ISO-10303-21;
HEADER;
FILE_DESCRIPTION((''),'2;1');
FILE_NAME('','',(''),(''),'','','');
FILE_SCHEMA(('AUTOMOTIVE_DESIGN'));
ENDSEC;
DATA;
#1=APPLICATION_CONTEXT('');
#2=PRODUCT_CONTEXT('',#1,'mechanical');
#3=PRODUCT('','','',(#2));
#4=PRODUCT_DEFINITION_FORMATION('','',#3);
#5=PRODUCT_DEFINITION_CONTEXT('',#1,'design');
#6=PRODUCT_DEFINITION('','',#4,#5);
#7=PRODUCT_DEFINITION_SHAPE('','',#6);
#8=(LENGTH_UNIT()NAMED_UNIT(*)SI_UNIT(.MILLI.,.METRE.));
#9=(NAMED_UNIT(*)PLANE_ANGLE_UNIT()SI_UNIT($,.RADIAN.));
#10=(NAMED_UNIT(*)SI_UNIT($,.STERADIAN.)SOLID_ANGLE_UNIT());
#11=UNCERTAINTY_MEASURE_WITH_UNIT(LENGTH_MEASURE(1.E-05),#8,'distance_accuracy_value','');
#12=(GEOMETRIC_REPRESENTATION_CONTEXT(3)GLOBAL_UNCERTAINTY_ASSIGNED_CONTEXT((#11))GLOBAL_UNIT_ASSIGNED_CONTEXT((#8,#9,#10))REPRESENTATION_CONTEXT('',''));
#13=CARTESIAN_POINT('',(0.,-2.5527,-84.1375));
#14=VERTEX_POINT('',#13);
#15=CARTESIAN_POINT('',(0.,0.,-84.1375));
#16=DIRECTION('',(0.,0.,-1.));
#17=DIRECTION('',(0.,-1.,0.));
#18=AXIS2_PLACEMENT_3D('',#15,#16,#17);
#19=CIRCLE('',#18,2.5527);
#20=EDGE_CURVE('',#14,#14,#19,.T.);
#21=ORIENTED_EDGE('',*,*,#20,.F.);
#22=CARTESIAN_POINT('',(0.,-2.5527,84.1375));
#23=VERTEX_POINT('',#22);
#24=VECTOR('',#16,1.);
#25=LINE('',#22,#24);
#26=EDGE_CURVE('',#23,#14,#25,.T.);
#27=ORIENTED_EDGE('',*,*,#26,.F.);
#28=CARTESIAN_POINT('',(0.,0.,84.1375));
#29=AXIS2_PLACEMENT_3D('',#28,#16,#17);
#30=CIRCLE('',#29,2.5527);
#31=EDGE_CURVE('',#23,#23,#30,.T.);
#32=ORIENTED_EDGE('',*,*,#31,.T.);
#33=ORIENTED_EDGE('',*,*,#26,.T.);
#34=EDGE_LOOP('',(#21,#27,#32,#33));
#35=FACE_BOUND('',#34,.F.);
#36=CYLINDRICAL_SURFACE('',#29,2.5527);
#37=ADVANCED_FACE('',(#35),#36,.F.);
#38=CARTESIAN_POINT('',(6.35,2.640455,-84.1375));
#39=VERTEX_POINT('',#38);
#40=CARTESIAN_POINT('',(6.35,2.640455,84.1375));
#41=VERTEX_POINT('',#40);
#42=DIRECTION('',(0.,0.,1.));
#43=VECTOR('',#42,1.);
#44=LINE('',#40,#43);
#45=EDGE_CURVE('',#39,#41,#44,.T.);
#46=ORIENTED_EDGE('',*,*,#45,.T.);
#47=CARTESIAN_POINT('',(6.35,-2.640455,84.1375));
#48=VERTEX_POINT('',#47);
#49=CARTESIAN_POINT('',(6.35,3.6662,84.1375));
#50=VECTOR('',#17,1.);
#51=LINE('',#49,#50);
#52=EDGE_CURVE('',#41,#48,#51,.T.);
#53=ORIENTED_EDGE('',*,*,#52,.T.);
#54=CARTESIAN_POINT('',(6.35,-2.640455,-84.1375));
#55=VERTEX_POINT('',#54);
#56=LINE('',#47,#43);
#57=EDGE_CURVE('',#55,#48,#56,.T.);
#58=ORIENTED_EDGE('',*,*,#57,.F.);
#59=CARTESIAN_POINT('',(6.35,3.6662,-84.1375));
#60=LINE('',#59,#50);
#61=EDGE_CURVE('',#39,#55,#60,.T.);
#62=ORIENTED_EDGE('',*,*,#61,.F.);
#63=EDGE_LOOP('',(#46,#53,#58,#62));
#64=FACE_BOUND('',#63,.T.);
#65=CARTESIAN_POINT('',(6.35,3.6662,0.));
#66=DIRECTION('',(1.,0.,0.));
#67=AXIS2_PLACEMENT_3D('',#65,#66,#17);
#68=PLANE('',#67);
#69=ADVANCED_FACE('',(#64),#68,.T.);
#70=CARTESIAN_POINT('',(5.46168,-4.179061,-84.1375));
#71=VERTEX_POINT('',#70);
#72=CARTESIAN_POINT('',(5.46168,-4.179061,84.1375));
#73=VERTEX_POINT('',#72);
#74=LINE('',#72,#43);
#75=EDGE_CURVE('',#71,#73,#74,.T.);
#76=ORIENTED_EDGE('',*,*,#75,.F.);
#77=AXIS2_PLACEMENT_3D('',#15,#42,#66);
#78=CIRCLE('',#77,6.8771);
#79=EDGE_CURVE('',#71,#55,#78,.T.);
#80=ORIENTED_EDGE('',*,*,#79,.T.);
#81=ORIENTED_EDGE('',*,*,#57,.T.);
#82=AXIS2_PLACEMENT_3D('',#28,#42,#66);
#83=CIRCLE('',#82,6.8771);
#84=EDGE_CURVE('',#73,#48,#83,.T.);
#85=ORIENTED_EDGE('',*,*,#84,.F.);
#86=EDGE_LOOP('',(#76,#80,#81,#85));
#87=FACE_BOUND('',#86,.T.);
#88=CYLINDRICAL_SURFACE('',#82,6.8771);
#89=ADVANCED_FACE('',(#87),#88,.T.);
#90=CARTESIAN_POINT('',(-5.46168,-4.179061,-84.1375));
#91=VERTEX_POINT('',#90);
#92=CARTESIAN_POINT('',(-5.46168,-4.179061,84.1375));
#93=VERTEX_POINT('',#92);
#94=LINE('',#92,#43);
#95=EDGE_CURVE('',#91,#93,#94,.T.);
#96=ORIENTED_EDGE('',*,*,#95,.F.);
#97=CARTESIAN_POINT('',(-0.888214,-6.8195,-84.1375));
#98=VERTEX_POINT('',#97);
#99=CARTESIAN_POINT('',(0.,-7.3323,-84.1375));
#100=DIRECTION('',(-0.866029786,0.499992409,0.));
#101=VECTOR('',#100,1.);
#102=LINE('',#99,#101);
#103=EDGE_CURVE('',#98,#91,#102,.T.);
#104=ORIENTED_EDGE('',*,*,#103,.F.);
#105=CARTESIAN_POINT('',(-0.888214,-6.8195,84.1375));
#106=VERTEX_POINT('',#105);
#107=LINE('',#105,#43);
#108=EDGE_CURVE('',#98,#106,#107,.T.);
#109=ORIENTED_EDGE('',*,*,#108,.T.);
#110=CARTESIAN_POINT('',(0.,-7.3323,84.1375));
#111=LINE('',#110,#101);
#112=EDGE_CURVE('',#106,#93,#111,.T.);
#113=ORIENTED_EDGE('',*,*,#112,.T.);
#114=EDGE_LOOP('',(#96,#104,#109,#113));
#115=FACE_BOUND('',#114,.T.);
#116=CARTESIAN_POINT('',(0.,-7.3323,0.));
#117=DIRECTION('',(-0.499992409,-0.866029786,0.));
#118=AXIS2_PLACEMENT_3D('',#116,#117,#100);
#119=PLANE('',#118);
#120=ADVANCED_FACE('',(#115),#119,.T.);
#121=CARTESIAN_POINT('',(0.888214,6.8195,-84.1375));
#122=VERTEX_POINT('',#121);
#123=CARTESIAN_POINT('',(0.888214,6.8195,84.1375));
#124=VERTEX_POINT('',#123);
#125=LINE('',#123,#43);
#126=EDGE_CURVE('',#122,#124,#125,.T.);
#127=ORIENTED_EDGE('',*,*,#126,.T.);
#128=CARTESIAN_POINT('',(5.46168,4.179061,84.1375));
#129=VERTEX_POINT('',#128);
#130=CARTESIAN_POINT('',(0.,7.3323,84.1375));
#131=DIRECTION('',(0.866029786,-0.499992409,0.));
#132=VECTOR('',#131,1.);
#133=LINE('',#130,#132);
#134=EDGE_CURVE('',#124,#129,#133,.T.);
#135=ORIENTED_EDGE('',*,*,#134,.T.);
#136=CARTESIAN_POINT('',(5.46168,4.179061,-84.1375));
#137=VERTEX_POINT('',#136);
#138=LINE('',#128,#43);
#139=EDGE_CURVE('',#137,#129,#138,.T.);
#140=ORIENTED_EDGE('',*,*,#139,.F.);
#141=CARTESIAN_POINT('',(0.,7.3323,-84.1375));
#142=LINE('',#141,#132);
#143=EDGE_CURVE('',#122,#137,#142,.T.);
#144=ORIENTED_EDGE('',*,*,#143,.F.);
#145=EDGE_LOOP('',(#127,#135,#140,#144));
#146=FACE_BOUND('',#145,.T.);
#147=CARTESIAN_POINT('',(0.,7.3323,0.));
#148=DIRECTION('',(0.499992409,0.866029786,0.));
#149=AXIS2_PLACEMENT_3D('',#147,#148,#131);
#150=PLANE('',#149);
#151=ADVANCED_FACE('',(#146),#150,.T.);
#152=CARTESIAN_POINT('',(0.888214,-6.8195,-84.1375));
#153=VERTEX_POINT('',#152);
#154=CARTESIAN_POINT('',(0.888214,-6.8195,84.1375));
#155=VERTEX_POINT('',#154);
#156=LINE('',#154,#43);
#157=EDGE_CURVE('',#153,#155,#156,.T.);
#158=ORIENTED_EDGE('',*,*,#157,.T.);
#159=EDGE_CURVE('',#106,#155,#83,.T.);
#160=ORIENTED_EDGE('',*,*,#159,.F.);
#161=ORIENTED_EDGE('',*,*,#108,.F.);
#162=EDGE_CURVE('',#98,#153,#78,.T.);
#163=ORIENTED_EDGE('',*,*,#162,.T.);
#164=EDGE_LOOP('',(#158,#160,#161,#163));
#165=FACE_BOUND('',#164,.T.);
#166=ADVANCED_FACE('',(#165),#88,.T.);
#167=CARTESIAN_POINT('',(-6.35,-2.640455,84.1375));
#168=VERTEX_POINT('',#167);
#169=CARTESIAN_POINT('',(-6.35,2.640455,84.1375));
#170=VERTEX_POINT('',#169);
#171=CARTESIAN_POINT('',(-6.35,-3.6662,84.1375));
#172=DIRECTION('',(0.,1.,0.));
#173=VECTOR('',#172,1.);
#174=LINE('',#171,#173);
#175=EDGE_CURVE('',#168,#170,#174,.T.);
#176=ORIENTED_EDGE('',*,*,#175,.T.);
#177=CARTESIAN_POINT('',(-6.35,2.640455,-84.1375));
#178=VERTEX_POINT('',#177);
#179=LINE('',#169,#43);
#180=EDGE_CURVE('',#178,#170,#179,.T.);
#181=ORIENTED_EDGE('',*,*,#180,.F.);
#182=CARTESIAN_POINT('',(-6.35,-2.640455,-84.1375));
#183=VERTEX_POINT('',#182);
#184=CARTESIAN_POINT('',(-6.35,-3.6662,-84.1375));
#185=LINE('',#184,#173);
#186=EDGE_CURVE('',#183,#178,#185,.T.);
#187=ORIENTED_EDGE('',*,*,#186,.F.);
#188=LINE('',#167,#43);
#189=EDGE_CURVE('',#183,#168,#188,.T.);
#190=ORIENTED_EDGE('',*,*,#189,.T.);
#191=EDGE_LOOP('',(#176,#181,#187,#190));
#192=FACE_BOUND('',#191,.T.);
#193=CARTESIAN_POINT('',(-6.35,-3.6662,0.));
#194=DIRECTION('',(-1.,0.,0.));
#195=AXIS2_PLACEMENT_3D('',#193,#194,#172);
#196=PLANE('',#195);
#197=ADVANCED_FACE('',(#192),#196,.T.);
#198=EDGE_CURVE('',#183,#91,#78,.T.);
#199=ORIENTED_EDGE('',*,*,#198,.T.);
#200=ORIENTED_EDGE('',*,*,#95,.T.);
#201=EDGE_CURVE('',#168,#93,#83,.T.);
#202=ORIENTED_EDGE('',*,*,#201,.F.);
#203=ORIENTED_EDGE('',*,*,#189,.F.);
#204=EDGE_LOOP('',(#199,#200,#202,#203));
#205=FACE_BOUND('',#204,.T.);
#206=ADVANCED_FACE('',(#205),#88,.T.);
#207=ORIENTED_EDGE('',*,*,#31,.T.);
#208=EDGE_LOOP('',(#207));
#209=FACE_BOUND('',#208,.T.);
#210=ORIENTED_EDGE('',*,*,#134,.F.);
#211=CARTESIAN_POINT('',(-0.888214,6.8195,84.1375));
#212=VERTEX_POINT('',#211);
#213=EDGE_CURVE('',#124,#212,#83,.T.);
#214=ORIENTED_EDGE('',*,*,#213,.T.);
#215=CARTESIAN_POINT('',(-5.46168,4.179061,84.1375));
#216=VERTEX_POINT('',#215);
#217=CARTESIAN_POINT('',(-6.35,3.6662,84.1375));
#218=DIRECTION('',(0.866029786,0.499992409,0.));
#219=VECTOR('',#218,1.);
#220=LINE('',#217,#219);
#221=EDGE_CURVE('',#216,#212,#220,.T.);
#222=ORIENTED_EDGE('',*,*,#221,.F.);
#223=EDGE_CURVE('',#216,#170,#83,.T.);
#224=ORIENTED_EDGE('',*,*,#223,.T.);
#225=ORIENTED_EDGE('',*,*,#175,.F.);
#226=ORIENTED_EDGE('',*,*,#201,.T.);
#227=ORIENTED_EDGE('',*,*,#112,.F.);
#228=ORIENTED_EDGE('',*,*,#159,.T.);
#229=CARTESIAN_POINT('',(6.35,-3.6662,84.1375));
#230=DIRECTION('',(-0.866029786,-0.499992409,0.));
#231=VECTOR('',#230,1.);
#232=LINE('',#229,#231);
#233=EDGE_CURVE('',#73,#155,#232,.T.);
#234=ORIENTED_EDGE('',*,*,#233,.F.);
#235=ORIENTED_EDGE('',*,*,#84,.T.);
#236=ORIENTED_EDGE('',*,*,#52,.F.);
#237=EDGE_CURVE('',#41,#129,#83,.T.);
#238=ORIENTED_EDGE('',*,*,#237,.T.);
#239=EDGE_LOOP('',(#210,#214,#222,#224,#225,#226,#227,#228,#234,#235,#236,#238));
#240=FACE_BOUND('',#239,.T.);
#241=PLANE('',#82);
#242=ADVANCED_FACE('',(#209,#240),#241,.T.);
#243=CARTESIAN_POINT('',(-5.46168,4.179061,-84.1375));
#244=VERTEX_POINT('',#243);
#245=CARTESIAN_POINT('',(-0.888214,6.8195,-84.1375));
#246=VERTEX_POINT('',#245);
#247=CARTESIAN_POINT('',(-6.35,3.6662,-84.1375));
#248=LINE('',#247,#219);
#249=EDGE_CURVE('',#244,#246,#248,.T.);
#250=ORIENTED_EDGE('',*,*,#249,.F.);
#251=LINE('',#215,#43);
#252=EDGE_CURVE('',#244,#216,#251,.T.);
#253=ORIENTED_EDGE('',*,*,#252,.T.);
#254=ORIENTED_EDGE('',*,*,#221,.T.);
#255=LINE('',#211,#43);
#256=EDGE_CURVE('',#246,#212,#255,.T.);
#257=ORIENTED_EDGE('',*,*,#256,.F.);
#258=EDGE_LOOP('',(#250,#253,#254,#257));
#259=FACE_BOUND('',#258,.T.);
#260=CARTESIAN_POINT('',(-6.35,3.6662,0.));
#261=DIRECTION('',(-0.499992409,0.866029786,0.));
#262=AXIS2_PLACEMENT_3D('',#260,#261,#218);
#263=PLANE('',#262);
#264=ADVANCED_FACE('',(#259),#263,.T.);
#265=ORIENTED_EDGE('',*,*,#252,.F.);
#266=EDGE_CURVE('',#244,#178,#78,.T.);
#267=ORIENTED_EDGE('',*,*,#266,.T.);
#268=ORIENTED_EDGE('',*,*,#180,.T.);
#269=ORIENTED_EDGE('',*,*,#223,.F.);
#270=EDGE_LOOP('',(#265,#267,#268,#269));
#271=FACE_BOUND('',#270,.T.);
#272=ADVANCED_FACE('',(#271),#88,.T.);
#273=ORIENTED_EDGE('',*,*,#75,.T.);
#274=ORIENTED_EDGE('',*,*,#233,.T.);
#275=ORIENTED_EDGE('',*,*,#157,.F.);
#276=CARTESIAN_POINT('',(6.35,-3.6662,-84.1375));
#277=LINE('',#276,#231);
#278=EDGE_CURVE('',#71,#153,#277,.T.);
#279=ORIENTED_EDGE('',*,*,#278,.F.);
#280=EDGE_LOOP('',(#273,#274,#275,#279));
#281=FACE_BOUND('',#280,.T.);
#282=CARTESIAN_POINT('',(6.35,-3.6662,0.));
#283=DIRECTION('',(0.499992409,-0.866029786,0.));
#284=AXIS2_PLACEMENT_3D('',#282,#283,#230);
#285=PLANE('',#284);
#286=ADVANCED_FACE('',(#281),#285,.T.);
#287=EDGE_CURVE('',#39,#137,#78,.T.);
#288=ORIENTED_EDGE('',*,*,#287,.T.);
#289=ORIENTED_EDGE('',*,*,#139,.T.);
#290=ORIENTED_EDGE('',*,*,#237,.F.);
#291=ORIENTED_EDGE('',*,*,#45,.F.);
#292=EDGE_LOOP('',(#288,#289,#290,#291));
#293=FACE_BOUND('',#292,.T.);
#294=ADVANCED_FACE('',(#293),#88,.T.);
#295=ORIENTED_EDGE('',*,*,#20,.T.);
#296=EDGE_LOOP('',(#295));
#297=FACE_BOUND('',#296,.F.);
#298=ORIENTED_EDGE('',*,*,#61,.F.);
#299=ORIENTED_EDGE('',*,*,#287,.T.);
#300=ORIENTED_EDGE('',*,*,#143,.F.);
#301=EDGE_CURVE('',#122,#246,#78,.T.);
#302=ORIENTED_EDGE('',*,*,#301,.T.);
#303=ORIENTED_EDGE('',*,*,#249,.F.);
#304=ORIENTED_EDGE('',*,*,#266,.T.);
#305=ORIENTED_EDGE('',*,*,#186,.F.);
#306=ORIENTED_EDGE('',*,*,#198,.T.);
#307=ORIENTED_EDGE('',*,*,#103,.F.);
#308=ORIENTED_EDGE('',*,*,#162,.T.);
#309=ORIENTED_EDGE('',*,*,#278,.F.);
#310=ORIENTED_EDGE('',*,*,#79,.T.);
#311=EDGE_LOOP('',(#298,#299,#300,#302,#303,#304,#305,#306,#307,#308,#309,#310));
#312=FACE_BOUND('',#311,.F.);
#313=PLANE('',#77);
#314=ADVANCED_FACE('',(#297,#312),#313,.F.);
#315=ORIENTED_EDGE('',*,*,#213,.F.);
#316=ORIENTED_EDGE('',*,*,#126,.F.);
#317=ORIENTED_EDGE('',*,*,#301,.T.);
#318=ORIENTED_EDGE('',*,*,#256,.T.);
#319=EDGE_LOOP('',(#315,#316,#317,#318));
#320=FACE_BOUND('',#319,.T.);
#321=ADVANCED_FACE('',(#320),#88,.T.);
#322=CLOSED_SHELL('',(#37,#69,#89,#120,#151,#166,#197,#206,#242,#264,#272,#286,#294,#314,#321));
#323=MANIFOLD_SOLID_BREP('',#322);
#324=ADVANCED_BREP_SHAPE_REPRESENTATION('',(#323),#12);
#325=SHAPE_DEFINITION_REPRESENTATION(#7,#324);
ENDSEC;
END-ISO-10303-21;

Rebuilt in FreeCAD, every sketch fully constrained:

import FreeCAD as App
import Part
import Sketcher

V = App.Vector
Q = App.Units.Quantity

doc = App.newDocument("Part")
params = doc.addObject("Spreadsheet::Sheet", "Params")
for row, (alias, value) in enumerate([
    ("pad1_length", "6.625 in"),
    ("sketch2_diameter", "0.201 in"),
    ("hole_diameter", "0.201 in"),
    ("sketch3_diameter", "0.7 in"),
], start=1):
    params.set(f"A{row}", alias)
    params.set(f"B{row}", "=" + value)
    params.setAlias(f"B{row}", alias)

body = doc.addObject("PartDesign::Body", "Body")

# Sketch on XY plane
sketch1 = doc.addObject("Sketcher::SketchObject", "Sketch")
body.addObject(sketch1)
sketch1.AttachmentSupport = (doc.XY_Plane, [""])
sketch1.MapMode = "FlatFace"
sketch1.addGeometry(Part.LineSegment(V(-6.35, 3.6662, 0), V(-6.35, -3.6662, 0)), False)
sketch1.addGeometry(Part.LineSegment(V(-6.35, -3.6662, 0), V(0, -7.3323, 0)), False)
sketch1.addGeometry(Part.LineSegment(V(0, -7.3323, 0), V(6.35, -3.6662, 0)), False)
sketch1.addGeometry(Part.LineSegment(V(6.35, -3.6662, 0), V(6.35, 3.6662, 0)), False)
sketch1.addGeometry(Part.LineSegment(V(6.35, 3.6662, 0), V(0, 7.3323, 0)), False)
sketch1.addGeometry(Part.LineSegment(V(0, 7.3323, 0), V(-6.35, 3.6662, 0)), False)
sketch1.addConstraint(Sketcher.Constraint("Coincident", 0, 2, 1, 1))
sketch1.addConstraint(Sketcher.Constraint("Coincident", 1, 2, 2, 1))
sketch1.addConstraint(Sketcher.Constraint("Coincident", 2, 2, 3, 1))
sketch1.addConstraint(Sketcher.Constraint("Coincident", 3, 2, 4, 1))
sketch1.addConstraint(Sketcher.Constraint("Coincident", 4, 2, 5, 1))
sketch1.addConstraint(Sketcher.Constraint("Coincident", 5, 2, 0, 1))
sketch1.addConstraint(Sketcher.Constraint("Vertical", 0))
sketch1.addConstraint(Sketcher.Constraint("Vertical", 3))
sketch1.addConstraint(Sketcher.Constraint("Symmetric", 0, 2, 3, 2, -1, 1))
sketch1.addConstraint(Sketcher.Constraint("Symmetric", 1, 2, 4, 2, -1, 1))
sketch1.addConstraint(Sketcher.Constraint("PointOnObject", 1, 2, -2))
sketch1.addConstraint(Sketcher.Constraint("Parallel", 2, 5))
sketch1.addConstraint(Sketcher.Constraint("Horizontal", 0, 2, 2, 2))
sketch1.addConstraint(Sketcher.Constraint("DistanceX", 0, 2, 2, 2, Q("0.5 in")))
sketch1.addConstraint(Sketcher.Constraint("Angle", 1, Q("-29.9995 deg")))
sketch1.addConstraint(Sketcher.Constraint("DistanceY", 1, 2, 3, 2, Q("0.433 in")))
pad1 = doc.addObject("PartDesign::Pad", "Pad")
body.addObject(pad1)
pad1.Profile = sketch1
pad1.setExpression("Length", "Params.pad1_length")
pad1.Midplane = True

# Sketch on XY plane
sketch2 = doc.addObject("Sketcher::SketchObject", "Sketch001")
body.addObject(sketch2)
sketch2.AttachmentSupport = (doc.XY_Plane, [""])
sketch2.MapMode = "FlatFace"
sketch2.AttachmentOffset = App.Placement(V(0, 0, 3.3125 * 25.4), App.Rotation())
sketch2.addGeometry(Part.Circle(V(0, 0, 0), V(0, 0, 1), 2.5527), False)
sketch2.addConstraint(Sketcher.Constraint("Coincident", 0, 3, -1, 1))
sketch2.addConstraint(Sketcher.Constraint("Diameter", 0, Q("0.201 in")))
sketch2.setExpression("Constraints[1]", "Params.sketch2_diameter")
doc.recompute()
hole = doc.addObject("PartDesign::Hole", "Hole")
body.addObject(hole)
hole.Profile = sketch2
hole.ThreadType = "None"
hole.setExpression("Diameter", "Params.hole_diameter")
hole.DepthType = "ThroughAll"

# Sketch on XY plane
sketch3 = doc.addObject("Sketcher::SketchObject", "Sketch002")
body.addObject(sketch3)
sketch3.AttachmentSupport = (doc.XY_Plane, [""])
sketch3.MapMode = "FlatFace"
sketch3.AttachmentOffset = App.Placement(V(0, 0, 3.3125 * 25.4), App.Rotation())
sketch3.addGeometry(Part.Circle(V(0, 0, 0), V(0, 0, 1), 8.89), False)
sketch3.addGeometry(Part.Circle(V(0, 0, 0), V(0, 0, 1), 6.8771), False)
sketch3.addConstraint(Sketcher.Constraint("Coincident", 0, 3, -1, 1))
sketch3.addConstraint(Sketcher.Constraint("Coincident", 1, 3, -1, 1))
sketch3.addConstraint(Sketcher.Constraint("Diameter", 0, Q("0.7 in")))
sketch3.addConstraint(Sketcher.Constraint("Diameter", 1, Q("0.5415 in")))
sketch3.setExpression("Constraints[2]", "Params.sketch3_diameter")
pocket1 = doc.addObject("PartDesign::Pocket", "Pocket")
body.addObject(pocket1)
pocket1.Profile = sketch3
pocket1.Type = "ThroughAll"

doc.recompute()
